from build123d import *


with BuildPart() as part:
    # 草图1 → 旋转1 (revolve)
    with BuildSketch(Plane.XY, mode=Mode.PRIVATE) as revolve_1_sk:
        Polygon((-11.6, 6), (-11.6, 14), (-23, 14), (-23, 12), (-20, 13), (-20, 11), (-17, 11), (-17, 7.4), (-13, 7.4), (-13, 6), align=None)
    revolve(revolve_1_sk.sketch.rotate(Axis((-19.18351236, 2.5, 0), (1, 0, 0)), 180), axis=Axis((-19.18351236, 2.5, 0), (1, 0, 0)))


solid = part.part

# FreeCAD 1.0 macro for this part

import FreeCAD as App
import Part
import Sketcher
from FreeCAD import Vector
Q = App.Units.Quantity


def add_polygon(sketch, points):
    """Adds a closed chain of lines whose ends are joined by coincident constraints."""
    first, n = sketch.GeometryCount, len(points)
    for a, b in zip(points, points[1:] + points[:1]):
        sketch.addGeometry(Part.LineSegment(App.Vector(*a, 0), App.Vector(*b, 0)), False)
    for i in range(n):
        sketch.addConstraint(Sketcher.Constraint("Coincident", first + i, 2, first + (i + 1) % n, 1))

doc = App.newDocument("Part")
body = doc.addObject("PartDesign::Body", "Body")

sketch1 = body.newObject("Sketcher::SketchObject", "Sketch")
sketch1.AttachmentSupport = (doc.getObject("XY_Plane"), [""])
sketch1.MapMode = "FlatFace"
add_polygon(sketch1, [(-11.6, 6), (-11.6, 14), (-23, 14), (-23, 12), (-20, 13), (-20, 11), (-17, 11), (-17, 7.4), (-13, 7.4), (-13, 6)])
sketch1.addGeometry(Part.LineSegment(Vector(-23, 2.5, 0), Vector(-11.6, 2.5, 0)), True)
sketch1.addConstraint([
    Sketcher.Constraint("Vertical", 0),
    Sketcher.Constraint("Horizontal", 1),
    Sketcher.Constraint("Vertical", 2),
    Sketcher.Constraint("Vertical", 4),
    Sketcher.Constraint("Horizontal", 5),
    Sketcher.Constraint("Vertical", 6),
    Sketcher.Constraint("Horizontal", 7),
    Sketcher.Constraint("Vertical", 8),
    Sketcher.Constraint("Horizontal", 9),
    Sketcher.Constraint("Horizontal", 10),
    Sketcher.Constraint("Vertical", 2, 2, 10, 1),
    Sketcher.Constraint("Vertical", 9, 2, 10, 2),
    Sketcher.Constraint("Equal", 2, 4),
    Sketcher.Constraint("Equal", 9, 8),
    Sketcher.Constraint("DistanceX", 5, 1, 5, 2, Q("3 mm")),
    Sketcher.Constraint("DistanceX", 7, 1, 7, 2, Q("4 mm")),
    Sketcher.Constraint("DistanceY", 0, 1, 0, 2, Q("8 mm")),
    Sketcher.Constraint("DistanceY", 2, 2, 2, 1, Q("2 mm")),
    Sketcher.Constraint("DistanceX", 1, 2, 1, 1, Q("11.4 mm")),
    Sketcher.Constraint("DistanceX", 9, 1, 9, 2, Q("1.4 mm")),
    Sketcher.Constraint("DistanceY", 6, 2, 6, 1, Q("3.6 mm")),
    Sketcher.Constraint("DistanceY", -1, 1, 0, 2, Q("14 mm")),
    Sketcher.Constraint("DistanceX", 1, 2, -1, 1, Q("23 mm")),
    Sketcher.Constraint("DistanceY", -1, 1, 10, 1, Q("2.5 mm")),
])
revolution = body.newObject("PartDesign::Revolution", "Revolution")
revolution.Profile = sketch1
revolution.ReferenceAxis = (sketch1, ["Axis0"])
revolution.Angle = 360

doc.recompute()
